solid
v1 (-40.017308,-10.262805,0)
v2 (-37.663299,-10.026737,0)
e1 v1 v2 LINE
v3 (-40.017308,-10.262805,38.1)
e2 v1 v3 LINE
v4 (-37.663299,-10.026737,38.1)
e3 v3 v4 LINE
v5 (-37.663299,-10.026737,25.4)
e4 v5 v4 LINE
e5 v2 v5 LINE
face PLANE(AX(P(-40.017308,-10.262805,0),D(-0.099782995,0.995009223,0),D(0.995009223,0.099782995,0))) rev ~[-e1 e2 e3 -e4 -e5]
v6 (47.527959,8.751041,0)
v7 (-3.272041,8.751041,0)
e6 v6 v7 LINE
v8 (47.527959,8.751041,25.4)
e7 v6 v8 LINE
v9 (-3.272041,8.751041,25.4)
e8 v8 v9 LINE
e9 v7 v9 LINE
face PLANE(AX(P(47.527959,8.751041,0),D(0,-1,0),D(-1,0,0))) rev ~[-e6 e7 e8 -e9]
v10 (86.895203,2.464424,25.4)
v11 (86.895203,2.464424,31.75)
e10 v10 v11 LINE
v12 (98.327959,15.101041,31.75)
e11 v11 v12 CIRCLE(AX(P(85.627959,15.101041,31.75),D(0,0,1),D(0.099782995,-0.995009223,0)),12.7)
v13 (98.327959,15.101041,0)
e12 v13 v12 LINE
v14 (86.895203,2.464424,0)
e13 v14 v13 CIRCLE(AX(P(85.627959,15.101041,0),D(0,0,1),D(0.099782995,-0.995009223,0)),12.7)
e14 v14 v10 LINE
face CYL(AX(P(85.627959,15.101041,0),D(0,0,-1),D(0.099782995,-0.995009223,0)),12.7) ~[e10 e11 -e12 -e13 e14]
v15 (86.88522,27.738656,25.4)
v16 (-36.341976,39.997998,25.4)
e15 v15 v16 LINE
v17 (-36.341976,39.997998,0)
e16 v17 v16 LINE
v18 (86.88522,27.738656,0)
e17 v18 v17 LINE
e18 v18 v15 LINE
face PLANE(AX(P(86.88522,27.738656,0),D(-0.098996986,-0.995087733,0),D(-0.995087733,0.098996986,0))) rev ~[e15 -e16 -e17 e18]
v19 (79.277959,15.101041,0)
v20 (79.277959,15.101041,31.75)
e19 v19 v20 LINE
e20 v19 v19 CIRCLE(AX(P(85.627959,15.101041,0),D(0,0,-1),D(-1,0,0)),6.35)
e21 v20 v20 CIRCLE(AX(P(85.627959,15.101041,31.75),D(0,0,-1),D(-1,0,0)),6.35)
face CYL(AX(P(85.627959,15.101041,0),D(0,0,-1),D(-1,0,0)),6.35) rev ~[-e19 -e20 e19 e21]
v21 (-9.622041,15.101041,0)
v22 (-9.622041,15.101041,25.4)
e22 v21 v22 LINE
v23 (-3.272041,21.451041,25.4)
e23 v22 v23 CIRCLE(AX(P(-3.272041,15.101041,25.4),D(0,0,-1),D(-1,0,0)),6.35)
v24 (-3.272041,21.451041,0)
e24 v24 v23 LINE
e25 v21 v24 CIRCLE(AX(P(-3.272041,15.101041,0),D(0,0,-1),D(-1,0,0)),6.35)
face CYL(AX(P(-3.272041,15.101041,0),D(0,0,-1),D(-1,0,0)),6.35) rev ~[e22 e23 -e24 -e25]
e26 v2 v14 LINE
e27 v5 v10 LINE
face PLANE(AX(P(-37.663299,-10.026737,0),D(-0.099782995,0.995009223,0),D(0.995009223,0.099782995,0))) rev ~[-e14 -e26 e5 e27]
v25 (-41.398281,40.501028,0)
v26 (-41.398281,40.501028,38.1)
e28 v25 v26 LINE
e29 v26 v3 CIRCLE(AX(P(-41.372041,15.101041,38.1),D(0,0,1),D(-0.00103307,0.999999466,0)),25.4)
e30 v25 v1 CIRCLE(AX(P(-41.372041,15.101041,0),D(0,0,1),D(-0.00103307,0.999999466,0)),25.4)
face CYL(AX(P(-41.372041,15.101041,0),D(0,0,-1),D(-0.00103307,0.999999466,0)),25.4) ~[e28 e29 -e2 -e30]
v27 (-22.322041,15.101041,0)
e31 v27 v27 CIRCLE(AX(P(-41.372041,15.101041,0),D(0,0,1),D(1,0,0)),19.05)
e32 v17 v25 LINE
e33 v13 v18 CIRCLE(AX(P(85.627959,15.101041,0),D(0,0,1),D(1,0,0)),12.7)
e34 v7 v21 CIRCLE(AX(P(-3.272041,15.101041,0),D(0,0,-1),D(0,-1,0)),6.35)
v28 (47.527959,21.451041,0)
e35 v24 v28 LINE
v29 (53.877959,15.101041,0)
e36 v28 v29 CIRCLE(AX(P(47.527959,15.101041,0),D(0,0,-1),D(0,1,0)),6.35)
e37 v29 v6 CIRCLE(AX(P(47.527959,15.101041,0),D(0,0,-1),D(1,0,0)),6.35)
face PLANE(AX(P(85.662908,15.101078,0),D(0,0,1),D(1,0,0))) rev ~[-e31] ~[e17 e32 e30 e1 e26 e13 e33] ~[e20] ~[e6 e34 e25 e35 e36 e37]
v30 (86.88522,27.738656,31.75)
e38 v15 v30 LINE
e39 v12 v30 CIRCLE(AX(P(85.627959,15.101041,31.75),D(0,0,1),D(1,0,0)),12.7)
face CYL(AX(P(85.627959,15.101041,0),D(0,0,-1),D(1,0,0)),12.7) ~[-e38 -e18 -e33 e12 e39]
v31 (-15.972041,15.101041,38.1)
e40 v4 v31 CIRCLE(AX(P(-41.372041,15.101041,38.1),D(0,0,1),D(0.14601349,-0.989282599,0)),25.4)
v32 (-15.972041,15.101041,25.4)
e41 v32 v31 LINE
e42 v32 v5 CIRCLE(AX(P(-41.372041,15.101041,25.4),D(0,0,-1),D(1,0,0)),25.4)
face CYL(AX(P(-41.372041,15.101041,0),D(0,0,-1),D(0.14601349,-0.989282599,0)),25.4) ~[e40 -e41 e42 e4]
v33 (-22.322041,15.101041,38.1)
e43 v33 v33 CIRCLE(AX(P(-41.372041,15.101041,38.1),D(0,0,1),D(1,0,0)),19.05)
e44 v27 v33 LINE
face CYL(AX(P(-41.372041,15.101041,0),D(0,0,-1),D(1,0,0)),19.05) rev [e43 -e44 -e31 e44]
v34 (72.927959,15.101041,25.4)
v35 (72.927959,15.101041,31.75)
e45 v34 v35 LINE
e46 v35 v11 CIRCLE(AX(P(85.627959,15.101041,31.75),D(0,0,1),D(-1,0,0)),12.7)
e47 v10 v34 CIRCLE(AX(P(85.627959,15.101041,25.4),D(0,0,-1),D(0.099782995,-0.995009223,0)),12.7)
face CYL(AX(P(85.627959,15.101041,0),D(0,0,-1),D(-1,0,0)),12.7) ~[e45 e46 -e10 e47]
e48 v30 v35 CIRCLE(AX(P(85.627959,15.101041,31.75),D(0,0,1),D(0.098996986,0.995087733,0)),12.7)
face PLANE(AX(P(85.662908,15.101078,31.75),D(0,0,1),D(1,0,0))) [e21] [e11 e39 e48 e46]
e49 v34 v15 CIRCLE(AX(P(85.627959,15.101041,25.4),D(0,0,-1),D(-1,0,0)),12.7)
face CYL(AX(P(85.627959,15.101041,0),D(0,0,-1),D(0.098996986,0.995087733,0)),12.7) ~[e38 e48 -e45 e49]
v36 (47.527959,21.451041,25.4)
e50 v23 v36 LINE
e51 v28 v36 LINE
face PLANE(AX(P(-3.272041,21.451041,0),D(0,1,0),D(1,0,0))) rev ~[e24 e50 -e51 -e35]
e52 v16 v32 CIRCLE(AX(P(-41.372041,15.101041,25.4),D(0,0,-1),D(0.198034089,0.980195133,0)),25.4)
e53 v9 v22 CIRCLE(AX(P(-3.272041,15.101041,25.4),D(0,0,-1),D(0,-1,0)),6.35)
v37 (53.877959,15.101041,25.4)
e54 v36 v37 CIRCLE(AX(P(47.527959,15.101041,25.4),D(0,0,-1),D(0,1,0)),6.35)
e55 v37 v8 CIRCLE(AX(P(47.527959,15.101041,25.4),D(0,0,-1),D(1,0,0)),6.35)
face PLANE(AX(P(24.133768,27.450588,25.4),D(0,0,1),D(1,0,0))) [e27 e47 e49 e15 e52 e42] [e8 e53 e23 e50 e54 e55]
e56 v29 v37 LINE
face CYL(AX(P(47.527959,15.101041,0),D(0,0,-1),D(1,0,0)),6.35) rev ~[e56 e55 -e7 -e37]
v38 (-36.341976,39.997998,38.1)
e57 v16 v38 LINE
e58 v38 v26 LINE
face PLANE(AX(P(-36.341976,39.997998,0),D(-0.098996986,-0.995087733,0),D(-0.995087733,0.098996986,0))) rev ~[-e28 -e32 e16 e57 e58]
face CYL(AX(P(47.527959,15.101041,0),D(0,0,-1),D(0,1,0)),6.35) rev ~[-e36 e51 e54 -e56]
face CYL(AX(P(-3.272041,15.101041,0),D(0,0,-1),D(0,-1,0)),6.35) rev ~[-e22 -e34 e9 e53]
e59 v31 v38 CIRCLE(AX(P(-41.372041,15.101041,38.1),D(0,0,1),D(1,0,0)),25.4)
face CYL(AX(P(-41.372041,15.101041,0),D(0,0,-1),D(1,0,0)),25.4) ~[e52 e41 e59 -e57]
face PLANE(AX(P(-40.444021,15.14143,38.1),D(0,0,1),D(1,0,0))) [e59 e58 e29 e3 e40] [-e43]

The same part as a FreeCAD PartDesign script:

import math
import FreeCAD as App
import Part
import Sketcher
Q = App.Units.Quantity

doc = App.newDocument("Part")
body = doc.addObject("PartDesign::Body", "Body")

# Sketch on XY plane
sketch1 = doc.addObject("Sketcher::SketchObject", "Sketch")
body.addObject(sketch1)
sketch1.AttachmentSupport = (doc.XY_Plane, [""])
sketch1.MapMode = "FlatFace"
sketch1.addGeometry([
    Part.ArcOfCircle(Part.Circle(App.Vector(-41.372041, 15.101041, 0), App.Vector(0, 0, 1), 25.4), math.radians(-81.604027), math.radians(0)),  # 0
    Part.ArcOfCircle(Part.Circle(App.Vector(-41.372041, 15.101041, 0), App.Vector(0, 0, 1), 25.4), math.radians(0), math.radians(78.577979)),  # 1
    Part.LineSegment(App.Vector(-36.341976, 39.997998, 0), App.Vector(-41.398281, 40.501028, 0)),  # 2
    Part.ArcOfCircle(Part.Circle(App.Vector(-41.372041, 15.101041, 0), App.Vector(0, 0, 1), 25.4), math.radians(90.059191), math.radians(273.057376)),  # 3
    Part.LineSegment(App.Vector(-40.017308, -10.262805, 0), App.Vector(-37.663299, -10.026737, 0)),  # 4
    Part.Circle(App.Vector(-41.372041, 15.101041, 0), App.Vector(0, 0, 1), 19.05),  # 5
], False)
sketch1.addConstraint([
    Sketcher.Constraint("Tangent", 0, 2, 1, 1),
    Sketcher.Constraint("Coincident", 1, 2, 2, 1),
    Sketcher.Constraint("Coincident", 2, 2, 3, 1),
    Sketcher.Constraint("Coincident", 3, 2, 4, 1),
    Sketcher.Constraint("Coincident", 4, 2, 0, 1),
    Sketcher.Constraint("Coincident", 3, 3, 0, 3),
    Sketcher.Constraint("Coincident", 5, 3, 0, 3),
    Sketcher.Constraint("Equal", 0, 1),
    Sketcher.Constraint("Equal", 1, 3),
    Sketcher.Constraint("Horizontal", 5, 3, 0, 2),
    Sketcher.Constraint("Radius", 0, Q("1 in")),
    Sketcher.Constraint("Diameter", 5, Q("1.5 in")),
    Sketcher.Constraint("DistanceX", 4, 2, -1, 1, 37.663299),
    Sketcher.Constraint("DistanceX", 0, 3, -1, 1, 41.372041),
    Sketcher.Constraint("DistanceY", -1, 1, 0, 3, 15.101041),
    Sketcher.Constraint("DistanceX", 2, 2, -1, 1, 41.398281),
    Sketcher.Constraint("DistanceY", 1, 2, 2, 2, 0.50303),
    Sketcher.Constraint("DistanceX", 3, 2, 4, 2, 2.354009),
])
pad1 = doc.addObject("PartDesign::Pad", "Pad")
body.addObject(pad1)
pad1.Profile = sketch1
pad1.Length = Q("1.5 in")

# Sketch on XY plane
sketch2 = doc.addObject("Sketcher::SketchObject", "Sketch001")
body.addObject(sketch2)
sketch2.AttachmentSupport = (doc.XY_Plane, [""])
sketch2.MapMode = "FlatFace"
sketch2.addGeometry([
    Part.ArcOfCircle(Part.Circle(App.Vector(-41.372041, 15.101041, 0), App.Vector(0, 0, 1), 25.4), math.radians(0), math.radians(78.577979)),  # 0
    Part.ArcOfCircle(Part.Circle(App.Vector(-41.372041, 15.101041, 0), App.Vector(0, 0, 1), 25.4), math.radians(-81.604027), math.radians(0)),  # 1
    Part.LineSegment(App.Vector(-37.663299, -10.026737, 0), App.Vector(86.895203, 2.464424, 0)),  # 2
    Part.ArcOfCircle(Part.Circle(App.Vector(85.627959, 15.101041, 0), App.Vector(0, 0, 1), 12.7), math.radians(-180), math.radians(-84.273326)),  # 3
    Part.ArcOfCircle(Part.Circle(App.Vector(85.627959, 15.101041, 0), App.Vector(0, 0, 1), 12.7), math.radians(84.318585), math.radians(180)),  # 4
    Part.LineSegment(App.Vector(86.88522, 27.738656, 0), App.Vector(-36.341976, 39.997998, 0)),  # 5
    Part.ArcOfCircle(Part.Circle(App.Vector(-3.272041, 15.101041, 0), App.Vector(0, 0, 1), 6.35), math.radians(90), math.radians(180)),  # 6
    Part.LineSegment(App.Vector(-3.272041, 21.451041, 0), App.Vector(47.527959, 21.451041, 0)),  # 7
    Part.ArcOfCircle(Part.Circle(App.Vector(47.527959, 15.101041, 0), App.Vector(0, 0, 1), 6.35), math.radians(0), math.radians(90)),  # 8
    Part.ArcOfCircle(Part.Circle(App.Vector(47.527959, 15.101041, 0), App.Vector(0, 0, 1), 6.35), math.radians(-90), math.radians(0)),  # 9
    Part.LineSegment(App.Vector(47.527959, 8.751041, 0), App.Vector(-3.272041, 8.751041, 0)),  # 10
    Part.ArcOfCircle(Part.Circle(App.Vector(-3.272041, 15.101041, 0), App.Vector(0, 0, 1), 6.35), math.radians(180), math.radians(270)),  # 11
], False)
sketch2.addConstraint([
    Sketcher.Constraint("Tangent", 0, 1, 1, 2),
    Sketcher.Constraint("Coincident", 1, 1, 2, 1),
    Sketcher.Constraint("Tangent", 2, 2, 3, 2),
    Sketcher.Constraint("Tangent", 3, 1, 4, 2),
    Sketcher.Constraint("Tangent", 4, 1, 5, 1),
    Sketcher.Constraint("Coincident", 5, 2, 0, 2),
    Sketcher.Constraint("Tangent", 6, 1, 7, 1),
    Sketcher.Constraint("Tangent", 7, 2, 8, 2),
    Sketcher.Constraint("Tangent", 8, 1, 9, 2),
    Sketcher.Constraint("Tangent", 9, 1, 10, 1),
    Sketcher.Constraint("Tangent", 10, 2, 11, 2),
    Sketcher.Constraint("Tangent", 11, 1, 6, 2),
    Sketcher.Constraint("Horizontal", 7),
    Sketcher.Constraint("Horizontal", 10),
    Sketcher.Constraint("Equal", 0, 1),
    Sketcher.Constraint("Equal", 3, 4),
    Sketcher.Constraint("Equal", 6, 8),
    Sketcher.Constraint("Equal", 8, 9),
    Sketcher.Constraint("Horizontal", 1, 3, 3, 3),
    Sketcher.Constraint("Horizontal", 4, 3, 6, 3),
    Sketcher.Constraint("Horizontal", 11, 3, 0, 1),
    Sketcher.Constraint("Horizontal", 0, 1, 3, 1),
    Sketcher.Constraint("Horizontal", 3, 1, 8, 1),
    Sketcher.Constraint("Horizontal", 8, 1, 11, 1),
    Sketcher.Constraint("Radius", 0, Q("1 in")),
    Sketcher.Constraint("Radius", 3, Q("0.5 in")),
    Sketcher.Constraint("DistanceX", 7, 1, 7, 2, Q("2 in")),
    Sketcher.Constraint("Radius", 6, Q("0.25 in")),
    Sketcher.Constraint("DistanceX", 0, 3, 3, 3, Q("5 in")),
    Sketcher.Constraint("DistanceX", 8, 3, 3, 1, Q("1 in")),
    Sketcher.Constraint("DistanceX", 1, 1, -1, 1, 37.663299),
    Sketcher.Constraint("Distance", 5, 123.835509),
    Sketcher.Constraint("DistanceX", 0, 3, -1, 1, 41.372041),
    Sketcher.Constraint("DistanceY", -1, 1, 0, 3, 15.101041),
])
pad2 = doc.addObject("PartDesign::Pad", "Pad001")
body.addObject(pad2)
pad2.Profile = sketch2
pad2.Length = Q("1 in")

# Sketch on XY plane
sketch3 = doc.addObject("Sketcher::SketchObject", "Sketch002")
body.addObject(sketch3)
sketch3.AttachmentSupport = (doc.XY_Plane, [""])
sketch3.MapMode = "FlatFace"
sketch3.addGeometry([
    Part.ArcOfCircle(Part.Circle(App.Vector(85.627959, 15.101041, 0), App.Vector(0, 0, 1), 12.7), math.radians(0), math.radians(84.318585)),  # 0
    Part.ArcOfCircle(Part.Circle(App.Vector(85.627959, 15.101041, 0), App.Vector(0, 0, 1), 12.7), math.radians(84.318585), math.radians(180)),  # 1
    Part.ArcOfCircle(Part.Circle(App.Vector(85.627959, 15.101041, 0), App.Vector(0, 0, 1), 12.7), math.radians(180), math.radians(275.726674)),  # 2
    Part.ArcOfCircle(Part.Circle(App.Vector(85.627959, 15.101041, 0), App.Vector(0, 0, 1), 12.7), math.radians(-84.273326), math.radians(0)),  # 3
    Part.Circle(App.Vector(85.627959, 15.101041, 0), App.Vector(0, 0, 1), 6.35),  # 4
], False)
sketch3.addConstraint([
    Sketcher.Constraint("Tangent", 0, 2, 1, 1),
    Sketcher.Constraint("Tangent", 1, 2, 2, 1),
    Sketcher.Constraint("Tangent", 2, 2, 3, 1),
    Sketcher.Constraint("Tangent", 3, 2, 0, 1),
    Sketcher.Constraint("Coincident", 4, 3, 0, 3),
    Sketcher.Constraint("Equal", 0, 1),
    Sketcher.Constraint("Horizontal", 4, 3, 1, 2),
    Sketcher.Constraint("Horizontal", 1, 2, 3, 2),
    Sketcher.Constraint("Diameter", 4, Q("0.5 in")),
    Sketcher.Constraint("Radius", 0, Q("0.5 in")),
    Sketcher.Constraint("DistanceX", -1, 1, 0, 3, 85.627959),
    Sketcher.Constraint("DistanceY", -1, 1, 0, 3, 15.101041),
    Sketcher.Constraint("DistanceX", -1, 1, 0, 2, 86.88522),
    Sketcher.Constraint("DistanceX", -1, 1, 2, 2, 86.895203),
])
pad3 = doc.addObject("PartDesign::Pad", "Pad002")
body.addObject(pad3)
pad3.Profile = sketch3
pad3.Length = Q("1.25 in")

doc.recompute()
